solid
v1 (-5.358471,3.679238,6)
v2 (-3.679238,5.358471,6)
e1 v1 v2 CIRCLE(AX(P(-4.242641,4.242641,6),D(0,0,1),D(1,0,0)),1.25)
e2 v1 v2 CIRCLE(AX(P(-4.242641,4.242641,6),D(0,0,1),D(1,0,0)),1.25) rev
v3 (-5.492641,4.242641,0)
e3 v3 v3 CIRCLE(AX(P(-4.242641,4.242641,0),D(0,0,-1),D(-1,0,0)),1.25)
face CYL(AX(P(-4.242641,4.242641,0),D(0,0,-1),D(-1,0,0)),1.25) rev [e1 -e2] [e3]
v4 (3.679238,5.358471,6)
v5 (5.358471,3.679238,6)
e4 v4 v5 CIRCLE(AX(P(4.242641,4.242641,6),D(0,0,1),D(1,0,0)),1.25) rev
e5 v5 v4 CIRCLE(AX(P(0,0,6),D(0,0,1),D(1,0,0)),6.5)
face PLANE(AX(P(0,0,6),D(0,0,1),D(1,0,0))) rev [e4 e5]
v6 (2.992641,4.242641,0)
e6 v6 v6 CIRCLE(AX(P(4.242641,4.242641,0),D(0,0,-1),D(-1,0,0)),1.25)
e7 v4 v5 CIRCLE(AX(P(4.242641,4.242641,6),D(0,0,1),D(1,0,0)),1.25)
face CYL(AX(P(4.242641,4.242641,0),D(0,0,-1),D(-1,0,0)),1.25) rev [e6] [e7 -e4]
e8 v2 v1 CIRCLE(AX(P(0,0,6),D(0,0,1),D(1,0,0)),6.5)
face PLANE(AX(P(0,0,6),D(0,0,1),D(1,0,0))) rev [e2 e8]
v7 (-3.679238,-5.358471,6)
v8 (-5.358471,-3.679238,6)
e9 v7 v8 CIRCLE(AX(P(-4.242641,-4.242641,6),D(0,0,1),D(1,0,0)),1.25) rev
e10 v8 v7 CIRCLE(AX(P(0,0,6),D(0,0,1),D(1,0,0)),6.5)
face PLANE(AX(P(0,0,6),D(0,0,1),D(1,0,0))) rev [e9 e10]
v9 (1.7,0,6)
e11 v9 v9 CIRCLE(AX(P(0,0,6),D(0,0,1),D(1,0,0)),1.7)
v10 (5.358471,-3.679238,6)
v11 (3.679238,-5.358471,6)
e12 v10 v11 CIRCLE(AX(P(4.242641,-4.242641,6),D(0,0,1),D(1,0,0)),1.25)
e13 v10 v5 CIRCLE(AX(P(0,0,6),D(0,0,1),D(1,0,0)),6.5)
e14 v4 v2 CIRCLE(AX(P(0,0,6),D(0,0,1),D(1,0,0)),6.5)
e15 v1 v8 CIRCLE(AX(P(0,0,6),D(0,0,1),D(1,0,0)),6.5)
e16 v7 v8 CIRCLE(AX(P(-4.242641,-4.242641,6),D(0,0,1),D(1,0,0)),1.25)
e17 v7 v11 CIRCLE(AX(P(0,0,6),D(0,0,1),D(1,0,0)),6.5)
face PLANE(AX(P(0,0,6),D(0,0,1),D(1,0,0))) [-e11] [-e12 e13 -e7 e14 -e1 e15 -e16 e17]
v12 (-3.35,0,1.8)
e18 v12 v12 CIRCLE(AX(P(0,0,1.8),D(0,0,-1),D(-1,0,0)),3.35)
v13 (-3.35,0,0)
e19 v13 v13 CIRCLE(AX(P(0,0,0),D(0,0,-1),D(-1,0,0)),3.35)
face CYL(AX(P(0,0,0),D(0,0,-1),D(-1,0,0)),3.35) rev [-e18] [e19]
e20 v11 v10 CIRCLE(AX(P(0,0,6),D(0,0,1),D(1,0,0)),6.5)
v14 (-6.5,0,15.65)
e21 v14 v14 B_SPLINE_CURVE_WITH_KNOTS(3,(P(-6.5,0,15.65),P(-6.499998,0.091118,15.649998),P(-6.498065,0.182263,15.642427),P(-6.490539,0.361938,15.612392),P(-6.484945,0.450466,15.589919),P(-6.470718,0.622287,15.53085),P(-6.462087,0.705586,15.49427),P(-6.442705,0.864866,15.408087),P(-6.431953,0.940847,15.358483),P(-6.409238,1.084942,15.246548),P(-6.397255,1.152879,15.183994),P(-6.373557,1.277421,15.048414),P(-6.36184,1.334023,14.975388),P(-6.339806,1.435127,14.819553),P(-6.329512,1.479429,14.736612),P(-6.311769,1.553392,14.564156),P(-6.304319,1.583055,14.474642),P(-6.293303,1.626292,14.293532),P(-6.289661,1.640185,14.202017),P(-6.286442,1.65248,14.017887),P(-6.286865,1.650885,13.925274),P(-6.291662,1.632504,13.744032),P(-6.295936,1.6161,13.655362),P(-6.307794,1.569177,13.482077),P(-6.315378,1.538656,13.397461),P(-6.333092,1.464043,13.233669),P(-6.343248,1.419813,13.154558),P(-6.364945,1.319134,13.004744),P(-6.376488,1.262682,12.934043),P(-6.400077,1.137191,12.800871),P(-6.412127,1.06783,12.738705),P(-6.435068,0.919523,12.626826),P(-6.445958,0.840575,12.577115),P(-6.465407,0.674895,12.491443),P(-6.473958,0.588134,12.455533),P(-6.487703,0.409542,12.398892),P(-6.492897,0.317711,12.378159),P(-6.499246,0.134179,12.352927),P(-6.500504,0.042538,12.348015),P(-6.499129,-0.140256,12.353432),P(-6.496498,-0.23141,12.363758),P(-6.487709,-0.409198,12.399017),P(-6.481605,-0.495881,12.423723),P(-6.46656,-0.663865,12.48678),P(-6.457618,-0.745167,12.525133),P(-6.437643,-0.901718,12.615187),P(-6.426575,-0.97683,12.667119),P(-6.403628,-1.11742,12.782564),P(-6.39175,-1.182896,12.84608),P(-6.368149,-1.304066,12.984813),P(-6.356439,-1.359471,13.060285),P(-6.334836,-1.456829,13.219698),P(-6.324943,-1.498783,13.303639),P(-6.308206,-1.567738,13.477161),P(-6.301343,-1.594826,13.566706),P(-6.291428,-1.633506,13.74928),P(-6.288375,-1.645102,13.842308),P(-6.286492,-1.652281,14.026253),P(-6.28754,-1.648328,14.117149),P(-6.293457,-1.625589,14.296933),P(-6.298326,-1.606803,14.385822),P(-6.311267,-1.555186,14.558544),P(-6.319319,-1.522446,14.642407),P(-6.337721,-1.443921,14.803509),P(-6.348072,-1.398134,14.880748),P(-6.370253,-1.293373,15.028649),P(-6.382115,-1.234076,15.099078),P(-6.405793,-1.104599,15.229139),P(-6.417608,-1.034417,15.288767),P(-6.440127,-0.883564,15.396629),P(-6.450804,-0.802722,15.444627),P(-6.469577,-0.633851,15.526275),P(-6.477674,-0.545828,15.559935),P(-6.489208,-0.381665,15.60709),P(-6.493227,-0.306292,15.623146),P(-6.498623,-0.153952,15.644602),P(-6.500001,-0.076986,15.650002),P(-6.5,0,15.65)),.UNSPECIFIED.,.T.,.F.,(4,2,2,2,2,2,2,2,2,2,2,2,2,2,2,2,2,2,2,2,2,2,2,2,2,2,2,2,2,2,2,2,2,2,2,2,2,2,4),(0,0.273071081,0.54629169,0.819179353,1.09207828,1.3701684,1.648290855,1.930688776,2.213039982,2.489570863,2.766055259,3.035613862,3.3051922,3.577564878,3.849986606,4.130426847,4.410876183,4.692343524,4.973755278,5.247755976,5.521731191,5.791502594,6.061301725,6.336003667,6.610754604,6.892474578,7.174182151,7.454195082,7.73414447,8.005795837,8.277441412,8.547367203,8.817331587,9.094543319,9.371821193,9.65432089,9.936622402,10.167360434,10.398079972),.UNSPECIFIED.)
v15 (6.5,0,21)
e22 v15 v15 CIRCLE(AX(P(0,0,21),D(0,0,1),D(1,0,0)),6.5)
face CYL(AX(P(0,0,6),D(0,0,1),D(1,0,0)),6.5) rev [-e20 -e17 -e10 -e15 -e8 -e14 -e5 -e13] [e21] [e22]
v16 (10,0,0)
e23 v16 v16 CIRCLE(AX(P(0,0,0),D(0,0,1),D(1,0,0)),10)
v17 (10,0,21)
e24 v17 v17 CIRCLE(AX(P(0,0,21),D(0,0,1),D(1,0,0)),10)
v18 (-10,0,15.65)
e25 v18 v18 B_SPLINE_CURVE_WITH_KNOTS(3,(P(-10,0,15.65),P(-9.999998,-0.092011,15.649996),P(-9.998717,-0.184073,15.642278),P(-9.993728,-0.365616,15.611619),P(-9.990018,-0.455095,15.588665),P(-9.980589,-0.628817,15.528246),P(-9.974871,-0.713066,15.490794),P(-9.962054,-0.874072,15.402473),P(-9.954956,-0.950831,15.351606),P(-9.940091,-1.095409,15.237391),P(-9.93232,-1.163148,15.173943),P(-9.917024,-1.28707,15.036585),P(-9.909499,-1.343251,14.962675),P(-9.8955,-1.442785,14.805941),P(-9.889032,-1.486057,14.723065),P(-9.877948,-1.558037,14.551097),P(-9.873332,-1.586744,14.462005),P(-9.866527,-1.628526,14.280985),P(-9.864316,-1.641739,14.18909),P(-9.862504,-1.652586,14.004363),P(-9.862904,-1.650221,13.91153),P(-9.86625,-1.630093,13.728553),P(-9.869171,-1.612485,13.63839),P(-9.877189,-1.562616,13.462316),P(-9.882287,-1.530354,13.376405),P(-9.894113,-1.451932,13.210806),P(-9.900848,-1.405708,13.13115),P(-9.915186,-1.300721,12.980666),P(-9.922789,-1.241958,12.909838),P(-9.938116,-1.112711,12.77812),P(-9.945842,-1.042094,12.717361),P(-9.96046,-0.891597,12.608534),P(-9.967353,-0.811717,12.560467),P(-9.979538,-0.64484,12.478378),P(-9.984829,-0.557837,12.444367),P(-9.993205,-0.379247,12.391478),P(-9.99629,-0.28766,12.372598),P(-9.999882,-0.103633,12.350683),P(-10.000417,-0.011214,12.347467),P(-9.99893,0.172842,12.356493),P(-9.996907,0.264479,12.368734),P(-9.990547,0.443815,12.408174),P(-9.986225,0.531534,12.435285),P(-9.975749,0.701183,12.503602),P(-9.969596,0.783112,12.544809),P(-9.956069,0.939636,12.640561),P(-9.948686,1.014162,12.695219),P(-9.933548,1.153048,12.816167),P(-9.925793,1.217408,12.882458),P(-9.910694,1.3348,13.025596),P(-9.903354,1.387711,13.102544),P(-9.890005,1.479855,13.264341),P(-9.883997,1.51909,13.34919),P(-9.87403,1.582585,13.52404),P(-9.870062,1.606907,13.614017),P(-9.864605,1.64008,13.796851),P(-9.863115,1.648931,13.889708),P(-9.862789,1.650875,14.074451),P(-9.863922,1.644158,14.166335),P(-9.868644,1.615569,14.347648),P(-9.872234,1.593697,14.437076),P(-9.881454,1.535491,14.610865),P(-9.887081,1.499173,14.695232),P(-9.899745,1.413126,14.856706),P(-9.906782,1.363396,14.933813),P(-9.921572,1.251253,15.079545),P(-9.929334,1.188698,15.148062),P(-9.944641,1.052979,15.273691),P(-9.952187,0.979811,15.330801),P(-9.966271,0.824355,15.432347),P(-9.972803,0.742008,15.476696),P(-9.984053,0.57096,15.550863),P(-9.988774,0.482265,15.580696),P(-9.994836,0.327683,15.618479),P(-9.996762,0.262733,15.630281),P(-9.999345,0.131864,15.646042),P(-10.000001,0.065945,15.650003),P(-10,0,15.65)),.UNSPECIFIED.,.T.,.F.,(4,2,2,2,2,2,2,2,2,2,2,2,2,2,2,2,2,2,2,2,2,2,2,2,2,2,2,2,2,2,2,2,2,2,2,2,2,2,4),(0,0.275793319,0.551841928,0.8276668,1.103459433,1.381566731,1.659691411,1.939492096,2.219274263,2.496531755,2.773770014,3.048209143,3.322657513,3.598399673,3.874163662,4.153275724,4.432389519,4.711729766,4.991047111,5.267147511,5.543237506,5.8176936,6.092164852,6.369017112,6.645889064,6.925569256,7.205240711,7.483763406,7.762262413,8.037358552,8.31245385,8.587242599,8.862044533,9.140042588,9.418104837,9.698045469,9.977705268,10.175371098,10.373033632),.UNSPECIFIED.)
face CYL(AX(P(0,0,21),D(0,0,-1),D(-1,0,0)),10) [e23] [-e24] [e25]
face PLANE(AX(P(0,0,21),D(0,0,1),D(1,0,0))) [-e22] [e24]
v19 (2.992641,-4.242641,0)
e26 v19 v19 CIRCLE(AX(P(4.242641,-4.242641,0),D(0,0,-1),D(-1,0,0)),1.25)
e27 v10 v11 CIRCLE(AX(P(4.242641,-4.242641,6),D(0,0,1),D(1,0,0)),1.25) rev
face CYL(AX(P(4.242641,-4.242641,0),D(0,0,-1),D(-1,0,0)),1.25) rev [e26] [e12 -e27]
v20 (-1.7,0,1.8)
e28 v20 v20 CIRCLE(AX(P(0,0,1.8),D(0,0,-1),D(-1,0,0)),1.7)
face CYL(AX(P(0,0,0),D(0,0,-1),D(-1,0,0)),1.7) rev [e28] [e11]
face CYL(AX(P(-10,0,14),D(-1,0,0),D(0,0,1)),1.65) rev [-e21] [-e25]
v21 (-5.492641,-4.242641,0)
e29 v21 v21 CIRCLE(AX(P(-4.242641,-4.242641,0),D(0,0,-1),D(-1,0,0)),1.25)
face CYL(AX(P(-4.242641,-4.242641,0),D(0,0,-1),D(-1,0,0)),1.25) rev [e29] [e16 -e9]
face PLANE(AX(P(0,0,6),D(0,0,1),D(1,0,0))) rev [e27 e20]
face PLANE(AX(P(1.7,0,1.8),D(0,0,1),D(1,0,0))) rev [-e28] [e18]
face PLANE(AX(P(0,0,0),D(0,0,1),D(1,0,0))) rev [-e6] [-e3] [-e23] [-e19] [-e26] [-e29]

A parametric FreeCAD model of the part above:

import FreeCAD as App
import Part
import Sketcher

V = App.Vector

doc = App.newDocument("Part")
body = doc.addObject("PartDesign::Body", "Body")

# Sketch on XY plane
sketch1 = body.newObject("Sketcher::SketchObject", "Sketch")
sketch1.AttachmentSupport = (doc.getObject("XY_Plane"), [""])
sketch1.MapMode = "FlatFace"
sketch1.addGeometry(Part.Circle(V(0, 0, 0), V(0, 0, 1), 10), False)
sketch1.addConstraint([
    Sketcher.Constraint("Coincident", 0, 3, -1, 1),
    Sketcher.Constraint("Diameter", 0, 20.0),
])
pad1 = body.newObject("PartDesign::Pad", "Pad")
pad1.Profile = sketch1
pad1.Length = 21

# Sketch on XY plane
sketch2 = body.newObject("Sketcher::SketchObject", "Sketch001")
sketch2.AttachmentSupport = (doc.getObject("XY_Plane"), [""])
sketch2.MapMode = "FlatFace"
sketch2.AttachmentOffset = App.Placement(V(0, 0, 21), App.Rotation())
sketch2.addGeometry(Part.Circle(V(0, 0, 0), V(0, 0, 1), 6.5), False)
sketch2.addConstraint([
    Sketcher.Constraint("Coincident", 0, 3, -1, 1),
    Sketcher.Constraint("Diameter", 0, 13.0),
])
pocket1 = body.newObject("PartDesign::Pocket", "Pocket")
pocket1.Profile = sketch2
pocket1.Length = 15

# Sketch on YZ plane
sketch3 = body.newObject("Sketcher::SketchObject", "Sketch002")
sketch3.AttachmentSupport = (doc.getObject("YZ_Plane"), [""])
sketch3.MapMode = "FlatFace"
sketch3.AttachmentOffset = App.Placement(V(0, 0, -10), App.Rotation())
sketch3.addGeometry(Part.Circle(V(0, 14, 0), V(0, 0, 1), 1.65), False)
sketch3.addConstraint([
    Sketcher.Constraint("PointOnObject", 0, 3, -2),
    Sketcher.Constraint("Diameter", 0, 3.3),
    Sketcher.Constraint("DistanceY", -1, 1, 0, 3, 14.0),
])
doc.recompute()
hole = body.newObject("PartDesign::Hole", "Hole")
hole.Profile = sketch3
hole.ThreadType = "None"
hole.Diameter = 3.3
hole.DepthType = "Dimension"
hole.Depth = 5
hole.DrillPoint = "Angled"
hole.DrillPointAngle = 118
hole.Reversed = True

# Sketch on XY plane
sketch4 = body.newObject("Sketcher::SketchObject", "Sketch003")
sketch4.AttachmentSupport = (doc.getObject("XY_Plane"), [""])
sketch4.MapMode = "FlatFace"
sketch4.addGeometry([
    Part.Circle(V(4.242641, 4.242641, 0), V(0, 0, 1), 1.25),
    Part.Circle(V(-4.242641, 4.242641, 0), V(0, 0, 1), 1.25),
    Part.Circle(V(-4.242641, -4.242641, 0), V(0, 0, 1), 1.25),
    Part.Circle(V(4.242641, -4.242641, 0), V(0, 0, 1), 1.25),
], False)
sketch4.addConstraint([
    Sketcher.Constraint("Equal", 0, 1),
    Sketcher.Constraint("Equal", 1, 2),
    Sketcher.Constraint("Equal", 2, 3),
    Sketcher.Constraint("Symmetric", 0, 3, 2, 3, -1, 1),
    Sketcher.Constraint("Symmetric", 1, 3, 3, 3, -1, 1),
    Sketcher.Constraint("Symmetric", 0, 3, 1, 3, -2),
    Sketcher.Constraint("Diameter", 0, 2.5),
    Sketcher.Constraint("DistanceX", -1, 1, 0, 3, 4.242641),
    Sketcher.Constraint("DistanceY", -1, 1, 0, 3, 4.242641),
])
doc.recompute()
hole2 = body.newObject("PartDesign::Hole", "Hole001")
hole2.Profile = sketch4
hole2.ThreadType = "None"
hole2.Diameter = 2.5
hole2.DepthType = "Dimension"
hole2.Depth = 6
hole2.DrillPoint = "Flat"
hole2.Reversed = True

# Sketch on XY plane
sketch5 = body.newObject("Sketcher::SketchObject", "Sketch004")
sketch5.AttachmentSupport = (doc.getObject("XY_Plane"), [""])
sketch5.MapMode = "FlatFace"
sketch5.addGeometry(Part.Circle(V(0, 0, 0), V(0, 0, 1), 1.7), False)
sketch5.addConstraint([
    Sketcher.Constraint("Coincident", 0, 3, -1, 1),
    Sketcher.Constraint("Diameter", 0, 3.4),
])
doc.recompute()
hole3 = body.newObject("PartDesign::Hole", "Hole002")
hole3.Profile = sketch5
hole3.ThreadType = "None"
hole3.Diameter = 3.4
hole3.DepthType = "ThroughAll"
hole3.HoleCutType = "Counterbore"
hole3.HoleCutDiameter = 6.7
hole3.HoleCutDepth = 1.8
hole3.Reversed = True

doc.recompute()
